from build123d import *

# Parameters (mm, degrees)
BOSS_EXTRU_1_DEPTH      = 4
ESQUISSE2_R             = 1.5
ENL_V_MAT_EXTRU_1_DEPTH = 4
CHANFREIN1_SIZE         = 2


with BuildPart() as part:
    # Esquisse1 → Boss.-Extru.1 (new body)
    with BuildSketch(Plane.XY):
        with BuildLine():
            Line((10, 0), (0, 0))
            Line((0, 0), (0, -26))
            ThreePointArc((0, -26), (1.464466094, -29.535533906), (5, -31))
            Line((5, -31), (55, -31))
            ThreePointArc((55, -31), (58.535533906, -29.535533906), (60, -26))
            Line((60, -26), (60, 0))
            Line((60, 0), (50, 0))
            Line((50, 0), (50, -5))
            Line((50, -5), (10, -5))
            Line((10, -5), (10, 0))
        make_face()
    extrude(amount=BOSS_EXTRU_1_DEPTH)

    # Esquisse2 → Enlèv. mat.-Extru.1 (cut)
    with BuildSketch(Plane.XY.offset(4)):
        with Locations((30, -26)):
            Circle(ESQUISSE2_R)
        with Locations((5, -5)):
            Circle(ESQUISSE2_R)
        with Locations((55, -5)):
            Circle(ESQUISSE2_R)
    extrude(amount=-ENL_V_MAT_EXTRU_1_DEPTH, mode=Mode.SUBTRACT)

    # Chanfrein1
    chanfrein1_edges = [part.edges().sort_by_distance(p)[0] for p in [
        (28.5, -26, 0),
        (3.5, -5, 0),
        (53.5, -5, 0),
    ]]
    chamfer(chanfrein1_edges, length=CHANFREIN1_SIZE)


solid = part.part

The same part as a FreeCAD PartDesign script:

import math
import FreeCAD as App
import Part
import Sketcher
from FreeCAD import Vector


def edges_at(feature, points):
    """Names of the edges that pass closest to the given points."""
    edges = feature.Shape.Edges
    near = lambda p: min(range(len(edges)), key=lambda i: edges[i].distToShape(Part.Vertex(*p))[0])
    return sorted({f"Edge{near(p) + 1}" for p in points})

doc = App.newDocument("Part")
params = doc.addObject("Spreadsheet::Sheet", "Params")
for row, (alias, value) in enumerate([
    ("sketch1_radius", "5 mm"),
    ("sketch1_width", "10 mm"),
    ("sketch1_width2", "50 mm"),
    ("sketch1_height", "26 mm"),
    ("sketch1_height2", "5 mm"),
    ("pad1_length", "4 mm"),
    ("sketch2_diameter", "3 mm"),
    ("pocket1_length", "4 mm"),
    ("chamfer_size", "2 mm"),
], start=1):
    params.set(f"A{row}", alias)
    params.set(f"B{row}", "=" + value)
    params.setAlias(f"B{row}", alias)

body = doc.addObject("PartDesign::Body", "Body")

# Sketch on XY plane
sketch1 = body.newObject("Sketcher::SketchObject", "Sketch")
sketch1.AttachmentSupport = (doc.getObject("XY_Plane"), [""])
sketch1.MapMode = "FlatFace"
sketch1.addGeometry([
    Part.LineSegment(Vector(10, 0, 0), Vector(0, 0, 0)),  # 0
    Part.LineSegment(Vector(0, 0, 0), Vector(0, -26, 0)),  # 1
    Part.ArcOfCircle(Part.Circle(Vector(5, -26, 0), Vector(0, 0, 1), 5), math.radians(180), math.radians(270)),  # 2
    Part.LineSegment(Vector(5, -31, 0), Vector(55, -31, 0)),  # 3
    Part.ArcOfCircle(Part.Circle(Vector(55, -26, 0), Vector(0, 0, 1), 5), math.radians(-90), math.radians(0)),  # 4
    Part.LineSegment(Vector(60, -26, 0), Vector(60, 0, 0)),  # 5
    Part.LineSegment(Vector(60, 0, 0), Vector(50, 0, 0)),  # 6
    Part.LineSegment(Vector(50, 0, 0), Vector(50, -5, 0)),  # 7
    Part.LineSegment(Vector(50, -5, 0), Vector(10, -5, 0)),  # 8
    Part.LineSegment(Vector(10, -5, 0), Vector(10, 0, 0)),  # 9
], False)
sketch1.addConstraint([
    Sketcher.Constraint("Coincident", 0, 2, 1, 1),
    Sketcher.Constraint("Tangent", 1, 2, 2, 1),
    Sketcher.Constraint("Tangent", 2, 2, 3, 1),
    Sketcher.Constraint("Tangent", 3, 2, 4, 1),
    Sketcher.Constraint("Tangent", 4, 2, 5, 1),
    Sketcher.Constraint("Coincident", 5, 2, 6, 1),
    Sketcher.Constraint("Coincident", 6, 2, 7, 1),
    Sketcher.Constraint("Coincident", 7, 2, 8, 1),
    Sketcher.Constraint("Coincident", 8, 2, 9, 1),
    Sketcher.Constraint("Coincident", 9, 2, 0, 1),
    Sketcher.Constraint("Horizontal", 0),
    Sketcher.Constraint("Vertical", 1),
    Sketcher.Constraint("Horizontal", 3),
    Sketcher.Constraint("Vertical", 5),
    Sketcher.Constraint("Horizontal", 6),
    Sketcher.Constraint("Vertical", 7),
    Sketcher.Constraint("Horizontal", 8),
    Sketcher.Constraint("Vertical", 9),
    Sketcher.Constraint("Coincident", 0, 2, -1, 1),
    Sketcher.Constraint("Equal", 2, 4),
    Sketcher.Constraint("PointOnObject", 5, 2, -1),
    Sketcher.Constraint("Equal", 0, 6),
    Sketcher.Constraint("Radius", 2, 5.0),
    Sketcher.Constraint("DistanceX", 0, 2, 0, 1, 10.0),
    Sketcher.Constraint("DistanceX", 3, 1, 3, 2, 50.0),
    Sketcher.Constraint("DistanceY", 1, 2, 1, 1, 26.0),
    Sketcher.Constraint("DistanceY", 7, 2, 7, 1, 5.0),
])
sketch1.setExpression("Constraints[22]", "Params.sketch1_radius")
sketch1.setExpression("Constraints[23]", "Params.sketch1_width")
sketch1.setExpression("Constraints[24]", "Params.sketch1_width2")
sketch1.setExpression("Constraints[25]", "Params.sketch1_height")
sketch1.setExpression("Constraints[26]", "Params.sketch1_height2")
pad1 = body.newObject("PartDesign::Pad", "Pad")
pad1.Profile = sketch1
pad1.setExpression("Length", "Params.pad1_length")

# Sketch on XY plane
sketch2 = body.newObject("Sketcher::SketchObject", "Sketch001")
sketch2.AttachmentSupport = (doc.getObject("XY_Plane"), [""])
sketch2.MapMode = "FlatFace"
sketch2.AttachmentOffset = App.Placement(Vector(0, 0, 4), App.Rotation())
sketch2.addGeometry([
    Part.Circle(Vector(30, -26, 0), Vector(0, 0, 1), 1.5),
    Part.Circle(Vector(5, -5, 0), Vector(0, 0, 1), 1.5),
    Part.Circle(Vector(55, -5, 0), Vector(0, 0, 1), 1.5),
], False)
sketch2.addConstraint([
    Sketcher.Constraint("Equal", 0, 1),
    Sketcher.Constraint("Equal", 1, 2),
    Sketcher.Constraint("Horizontal", 1, 3, 2, 3),
    Sketcher.Constraint("Diameter", 0, 3.0),
    Sketcher.Constraint("DistanceX", -1, 1, 0, 3, 30.0),
    Sketcher.Constraint("DistanceY", 0, 3, -1, 1, 26.0),
    Sketcher.Constraint("DistanceX", -1, 1, 1, 3, 5.0),
    Sketcher.Constraint("DistanceY", 1, 3, -1, 1, 5.0),
    Sketcher.Constraint("DistanceX", -1, 1, 2, 3, 55.0),
])
sketch2.setExpression("Constraints[3]", "Params.sketch2_diameter")
pocket1 = body.newObject("PartDesign::Pocket", "Pocket")
pocket1.Profile = sketch2
pocket1.setExpression("Length", "Params.pocket1_length")
doc.recompute()

chamfer = body.newObject("PartDesign::Chamfer", "Chamfer")
chamfer.Base = (pocket1, edges_at(pocket1, [(28.5, -26, 0), (3.5, -5, 0), (53.5, -5, 0)]))
chamfer.setExpression("Size", "Params.chamfer_size")

doc.recompute()
